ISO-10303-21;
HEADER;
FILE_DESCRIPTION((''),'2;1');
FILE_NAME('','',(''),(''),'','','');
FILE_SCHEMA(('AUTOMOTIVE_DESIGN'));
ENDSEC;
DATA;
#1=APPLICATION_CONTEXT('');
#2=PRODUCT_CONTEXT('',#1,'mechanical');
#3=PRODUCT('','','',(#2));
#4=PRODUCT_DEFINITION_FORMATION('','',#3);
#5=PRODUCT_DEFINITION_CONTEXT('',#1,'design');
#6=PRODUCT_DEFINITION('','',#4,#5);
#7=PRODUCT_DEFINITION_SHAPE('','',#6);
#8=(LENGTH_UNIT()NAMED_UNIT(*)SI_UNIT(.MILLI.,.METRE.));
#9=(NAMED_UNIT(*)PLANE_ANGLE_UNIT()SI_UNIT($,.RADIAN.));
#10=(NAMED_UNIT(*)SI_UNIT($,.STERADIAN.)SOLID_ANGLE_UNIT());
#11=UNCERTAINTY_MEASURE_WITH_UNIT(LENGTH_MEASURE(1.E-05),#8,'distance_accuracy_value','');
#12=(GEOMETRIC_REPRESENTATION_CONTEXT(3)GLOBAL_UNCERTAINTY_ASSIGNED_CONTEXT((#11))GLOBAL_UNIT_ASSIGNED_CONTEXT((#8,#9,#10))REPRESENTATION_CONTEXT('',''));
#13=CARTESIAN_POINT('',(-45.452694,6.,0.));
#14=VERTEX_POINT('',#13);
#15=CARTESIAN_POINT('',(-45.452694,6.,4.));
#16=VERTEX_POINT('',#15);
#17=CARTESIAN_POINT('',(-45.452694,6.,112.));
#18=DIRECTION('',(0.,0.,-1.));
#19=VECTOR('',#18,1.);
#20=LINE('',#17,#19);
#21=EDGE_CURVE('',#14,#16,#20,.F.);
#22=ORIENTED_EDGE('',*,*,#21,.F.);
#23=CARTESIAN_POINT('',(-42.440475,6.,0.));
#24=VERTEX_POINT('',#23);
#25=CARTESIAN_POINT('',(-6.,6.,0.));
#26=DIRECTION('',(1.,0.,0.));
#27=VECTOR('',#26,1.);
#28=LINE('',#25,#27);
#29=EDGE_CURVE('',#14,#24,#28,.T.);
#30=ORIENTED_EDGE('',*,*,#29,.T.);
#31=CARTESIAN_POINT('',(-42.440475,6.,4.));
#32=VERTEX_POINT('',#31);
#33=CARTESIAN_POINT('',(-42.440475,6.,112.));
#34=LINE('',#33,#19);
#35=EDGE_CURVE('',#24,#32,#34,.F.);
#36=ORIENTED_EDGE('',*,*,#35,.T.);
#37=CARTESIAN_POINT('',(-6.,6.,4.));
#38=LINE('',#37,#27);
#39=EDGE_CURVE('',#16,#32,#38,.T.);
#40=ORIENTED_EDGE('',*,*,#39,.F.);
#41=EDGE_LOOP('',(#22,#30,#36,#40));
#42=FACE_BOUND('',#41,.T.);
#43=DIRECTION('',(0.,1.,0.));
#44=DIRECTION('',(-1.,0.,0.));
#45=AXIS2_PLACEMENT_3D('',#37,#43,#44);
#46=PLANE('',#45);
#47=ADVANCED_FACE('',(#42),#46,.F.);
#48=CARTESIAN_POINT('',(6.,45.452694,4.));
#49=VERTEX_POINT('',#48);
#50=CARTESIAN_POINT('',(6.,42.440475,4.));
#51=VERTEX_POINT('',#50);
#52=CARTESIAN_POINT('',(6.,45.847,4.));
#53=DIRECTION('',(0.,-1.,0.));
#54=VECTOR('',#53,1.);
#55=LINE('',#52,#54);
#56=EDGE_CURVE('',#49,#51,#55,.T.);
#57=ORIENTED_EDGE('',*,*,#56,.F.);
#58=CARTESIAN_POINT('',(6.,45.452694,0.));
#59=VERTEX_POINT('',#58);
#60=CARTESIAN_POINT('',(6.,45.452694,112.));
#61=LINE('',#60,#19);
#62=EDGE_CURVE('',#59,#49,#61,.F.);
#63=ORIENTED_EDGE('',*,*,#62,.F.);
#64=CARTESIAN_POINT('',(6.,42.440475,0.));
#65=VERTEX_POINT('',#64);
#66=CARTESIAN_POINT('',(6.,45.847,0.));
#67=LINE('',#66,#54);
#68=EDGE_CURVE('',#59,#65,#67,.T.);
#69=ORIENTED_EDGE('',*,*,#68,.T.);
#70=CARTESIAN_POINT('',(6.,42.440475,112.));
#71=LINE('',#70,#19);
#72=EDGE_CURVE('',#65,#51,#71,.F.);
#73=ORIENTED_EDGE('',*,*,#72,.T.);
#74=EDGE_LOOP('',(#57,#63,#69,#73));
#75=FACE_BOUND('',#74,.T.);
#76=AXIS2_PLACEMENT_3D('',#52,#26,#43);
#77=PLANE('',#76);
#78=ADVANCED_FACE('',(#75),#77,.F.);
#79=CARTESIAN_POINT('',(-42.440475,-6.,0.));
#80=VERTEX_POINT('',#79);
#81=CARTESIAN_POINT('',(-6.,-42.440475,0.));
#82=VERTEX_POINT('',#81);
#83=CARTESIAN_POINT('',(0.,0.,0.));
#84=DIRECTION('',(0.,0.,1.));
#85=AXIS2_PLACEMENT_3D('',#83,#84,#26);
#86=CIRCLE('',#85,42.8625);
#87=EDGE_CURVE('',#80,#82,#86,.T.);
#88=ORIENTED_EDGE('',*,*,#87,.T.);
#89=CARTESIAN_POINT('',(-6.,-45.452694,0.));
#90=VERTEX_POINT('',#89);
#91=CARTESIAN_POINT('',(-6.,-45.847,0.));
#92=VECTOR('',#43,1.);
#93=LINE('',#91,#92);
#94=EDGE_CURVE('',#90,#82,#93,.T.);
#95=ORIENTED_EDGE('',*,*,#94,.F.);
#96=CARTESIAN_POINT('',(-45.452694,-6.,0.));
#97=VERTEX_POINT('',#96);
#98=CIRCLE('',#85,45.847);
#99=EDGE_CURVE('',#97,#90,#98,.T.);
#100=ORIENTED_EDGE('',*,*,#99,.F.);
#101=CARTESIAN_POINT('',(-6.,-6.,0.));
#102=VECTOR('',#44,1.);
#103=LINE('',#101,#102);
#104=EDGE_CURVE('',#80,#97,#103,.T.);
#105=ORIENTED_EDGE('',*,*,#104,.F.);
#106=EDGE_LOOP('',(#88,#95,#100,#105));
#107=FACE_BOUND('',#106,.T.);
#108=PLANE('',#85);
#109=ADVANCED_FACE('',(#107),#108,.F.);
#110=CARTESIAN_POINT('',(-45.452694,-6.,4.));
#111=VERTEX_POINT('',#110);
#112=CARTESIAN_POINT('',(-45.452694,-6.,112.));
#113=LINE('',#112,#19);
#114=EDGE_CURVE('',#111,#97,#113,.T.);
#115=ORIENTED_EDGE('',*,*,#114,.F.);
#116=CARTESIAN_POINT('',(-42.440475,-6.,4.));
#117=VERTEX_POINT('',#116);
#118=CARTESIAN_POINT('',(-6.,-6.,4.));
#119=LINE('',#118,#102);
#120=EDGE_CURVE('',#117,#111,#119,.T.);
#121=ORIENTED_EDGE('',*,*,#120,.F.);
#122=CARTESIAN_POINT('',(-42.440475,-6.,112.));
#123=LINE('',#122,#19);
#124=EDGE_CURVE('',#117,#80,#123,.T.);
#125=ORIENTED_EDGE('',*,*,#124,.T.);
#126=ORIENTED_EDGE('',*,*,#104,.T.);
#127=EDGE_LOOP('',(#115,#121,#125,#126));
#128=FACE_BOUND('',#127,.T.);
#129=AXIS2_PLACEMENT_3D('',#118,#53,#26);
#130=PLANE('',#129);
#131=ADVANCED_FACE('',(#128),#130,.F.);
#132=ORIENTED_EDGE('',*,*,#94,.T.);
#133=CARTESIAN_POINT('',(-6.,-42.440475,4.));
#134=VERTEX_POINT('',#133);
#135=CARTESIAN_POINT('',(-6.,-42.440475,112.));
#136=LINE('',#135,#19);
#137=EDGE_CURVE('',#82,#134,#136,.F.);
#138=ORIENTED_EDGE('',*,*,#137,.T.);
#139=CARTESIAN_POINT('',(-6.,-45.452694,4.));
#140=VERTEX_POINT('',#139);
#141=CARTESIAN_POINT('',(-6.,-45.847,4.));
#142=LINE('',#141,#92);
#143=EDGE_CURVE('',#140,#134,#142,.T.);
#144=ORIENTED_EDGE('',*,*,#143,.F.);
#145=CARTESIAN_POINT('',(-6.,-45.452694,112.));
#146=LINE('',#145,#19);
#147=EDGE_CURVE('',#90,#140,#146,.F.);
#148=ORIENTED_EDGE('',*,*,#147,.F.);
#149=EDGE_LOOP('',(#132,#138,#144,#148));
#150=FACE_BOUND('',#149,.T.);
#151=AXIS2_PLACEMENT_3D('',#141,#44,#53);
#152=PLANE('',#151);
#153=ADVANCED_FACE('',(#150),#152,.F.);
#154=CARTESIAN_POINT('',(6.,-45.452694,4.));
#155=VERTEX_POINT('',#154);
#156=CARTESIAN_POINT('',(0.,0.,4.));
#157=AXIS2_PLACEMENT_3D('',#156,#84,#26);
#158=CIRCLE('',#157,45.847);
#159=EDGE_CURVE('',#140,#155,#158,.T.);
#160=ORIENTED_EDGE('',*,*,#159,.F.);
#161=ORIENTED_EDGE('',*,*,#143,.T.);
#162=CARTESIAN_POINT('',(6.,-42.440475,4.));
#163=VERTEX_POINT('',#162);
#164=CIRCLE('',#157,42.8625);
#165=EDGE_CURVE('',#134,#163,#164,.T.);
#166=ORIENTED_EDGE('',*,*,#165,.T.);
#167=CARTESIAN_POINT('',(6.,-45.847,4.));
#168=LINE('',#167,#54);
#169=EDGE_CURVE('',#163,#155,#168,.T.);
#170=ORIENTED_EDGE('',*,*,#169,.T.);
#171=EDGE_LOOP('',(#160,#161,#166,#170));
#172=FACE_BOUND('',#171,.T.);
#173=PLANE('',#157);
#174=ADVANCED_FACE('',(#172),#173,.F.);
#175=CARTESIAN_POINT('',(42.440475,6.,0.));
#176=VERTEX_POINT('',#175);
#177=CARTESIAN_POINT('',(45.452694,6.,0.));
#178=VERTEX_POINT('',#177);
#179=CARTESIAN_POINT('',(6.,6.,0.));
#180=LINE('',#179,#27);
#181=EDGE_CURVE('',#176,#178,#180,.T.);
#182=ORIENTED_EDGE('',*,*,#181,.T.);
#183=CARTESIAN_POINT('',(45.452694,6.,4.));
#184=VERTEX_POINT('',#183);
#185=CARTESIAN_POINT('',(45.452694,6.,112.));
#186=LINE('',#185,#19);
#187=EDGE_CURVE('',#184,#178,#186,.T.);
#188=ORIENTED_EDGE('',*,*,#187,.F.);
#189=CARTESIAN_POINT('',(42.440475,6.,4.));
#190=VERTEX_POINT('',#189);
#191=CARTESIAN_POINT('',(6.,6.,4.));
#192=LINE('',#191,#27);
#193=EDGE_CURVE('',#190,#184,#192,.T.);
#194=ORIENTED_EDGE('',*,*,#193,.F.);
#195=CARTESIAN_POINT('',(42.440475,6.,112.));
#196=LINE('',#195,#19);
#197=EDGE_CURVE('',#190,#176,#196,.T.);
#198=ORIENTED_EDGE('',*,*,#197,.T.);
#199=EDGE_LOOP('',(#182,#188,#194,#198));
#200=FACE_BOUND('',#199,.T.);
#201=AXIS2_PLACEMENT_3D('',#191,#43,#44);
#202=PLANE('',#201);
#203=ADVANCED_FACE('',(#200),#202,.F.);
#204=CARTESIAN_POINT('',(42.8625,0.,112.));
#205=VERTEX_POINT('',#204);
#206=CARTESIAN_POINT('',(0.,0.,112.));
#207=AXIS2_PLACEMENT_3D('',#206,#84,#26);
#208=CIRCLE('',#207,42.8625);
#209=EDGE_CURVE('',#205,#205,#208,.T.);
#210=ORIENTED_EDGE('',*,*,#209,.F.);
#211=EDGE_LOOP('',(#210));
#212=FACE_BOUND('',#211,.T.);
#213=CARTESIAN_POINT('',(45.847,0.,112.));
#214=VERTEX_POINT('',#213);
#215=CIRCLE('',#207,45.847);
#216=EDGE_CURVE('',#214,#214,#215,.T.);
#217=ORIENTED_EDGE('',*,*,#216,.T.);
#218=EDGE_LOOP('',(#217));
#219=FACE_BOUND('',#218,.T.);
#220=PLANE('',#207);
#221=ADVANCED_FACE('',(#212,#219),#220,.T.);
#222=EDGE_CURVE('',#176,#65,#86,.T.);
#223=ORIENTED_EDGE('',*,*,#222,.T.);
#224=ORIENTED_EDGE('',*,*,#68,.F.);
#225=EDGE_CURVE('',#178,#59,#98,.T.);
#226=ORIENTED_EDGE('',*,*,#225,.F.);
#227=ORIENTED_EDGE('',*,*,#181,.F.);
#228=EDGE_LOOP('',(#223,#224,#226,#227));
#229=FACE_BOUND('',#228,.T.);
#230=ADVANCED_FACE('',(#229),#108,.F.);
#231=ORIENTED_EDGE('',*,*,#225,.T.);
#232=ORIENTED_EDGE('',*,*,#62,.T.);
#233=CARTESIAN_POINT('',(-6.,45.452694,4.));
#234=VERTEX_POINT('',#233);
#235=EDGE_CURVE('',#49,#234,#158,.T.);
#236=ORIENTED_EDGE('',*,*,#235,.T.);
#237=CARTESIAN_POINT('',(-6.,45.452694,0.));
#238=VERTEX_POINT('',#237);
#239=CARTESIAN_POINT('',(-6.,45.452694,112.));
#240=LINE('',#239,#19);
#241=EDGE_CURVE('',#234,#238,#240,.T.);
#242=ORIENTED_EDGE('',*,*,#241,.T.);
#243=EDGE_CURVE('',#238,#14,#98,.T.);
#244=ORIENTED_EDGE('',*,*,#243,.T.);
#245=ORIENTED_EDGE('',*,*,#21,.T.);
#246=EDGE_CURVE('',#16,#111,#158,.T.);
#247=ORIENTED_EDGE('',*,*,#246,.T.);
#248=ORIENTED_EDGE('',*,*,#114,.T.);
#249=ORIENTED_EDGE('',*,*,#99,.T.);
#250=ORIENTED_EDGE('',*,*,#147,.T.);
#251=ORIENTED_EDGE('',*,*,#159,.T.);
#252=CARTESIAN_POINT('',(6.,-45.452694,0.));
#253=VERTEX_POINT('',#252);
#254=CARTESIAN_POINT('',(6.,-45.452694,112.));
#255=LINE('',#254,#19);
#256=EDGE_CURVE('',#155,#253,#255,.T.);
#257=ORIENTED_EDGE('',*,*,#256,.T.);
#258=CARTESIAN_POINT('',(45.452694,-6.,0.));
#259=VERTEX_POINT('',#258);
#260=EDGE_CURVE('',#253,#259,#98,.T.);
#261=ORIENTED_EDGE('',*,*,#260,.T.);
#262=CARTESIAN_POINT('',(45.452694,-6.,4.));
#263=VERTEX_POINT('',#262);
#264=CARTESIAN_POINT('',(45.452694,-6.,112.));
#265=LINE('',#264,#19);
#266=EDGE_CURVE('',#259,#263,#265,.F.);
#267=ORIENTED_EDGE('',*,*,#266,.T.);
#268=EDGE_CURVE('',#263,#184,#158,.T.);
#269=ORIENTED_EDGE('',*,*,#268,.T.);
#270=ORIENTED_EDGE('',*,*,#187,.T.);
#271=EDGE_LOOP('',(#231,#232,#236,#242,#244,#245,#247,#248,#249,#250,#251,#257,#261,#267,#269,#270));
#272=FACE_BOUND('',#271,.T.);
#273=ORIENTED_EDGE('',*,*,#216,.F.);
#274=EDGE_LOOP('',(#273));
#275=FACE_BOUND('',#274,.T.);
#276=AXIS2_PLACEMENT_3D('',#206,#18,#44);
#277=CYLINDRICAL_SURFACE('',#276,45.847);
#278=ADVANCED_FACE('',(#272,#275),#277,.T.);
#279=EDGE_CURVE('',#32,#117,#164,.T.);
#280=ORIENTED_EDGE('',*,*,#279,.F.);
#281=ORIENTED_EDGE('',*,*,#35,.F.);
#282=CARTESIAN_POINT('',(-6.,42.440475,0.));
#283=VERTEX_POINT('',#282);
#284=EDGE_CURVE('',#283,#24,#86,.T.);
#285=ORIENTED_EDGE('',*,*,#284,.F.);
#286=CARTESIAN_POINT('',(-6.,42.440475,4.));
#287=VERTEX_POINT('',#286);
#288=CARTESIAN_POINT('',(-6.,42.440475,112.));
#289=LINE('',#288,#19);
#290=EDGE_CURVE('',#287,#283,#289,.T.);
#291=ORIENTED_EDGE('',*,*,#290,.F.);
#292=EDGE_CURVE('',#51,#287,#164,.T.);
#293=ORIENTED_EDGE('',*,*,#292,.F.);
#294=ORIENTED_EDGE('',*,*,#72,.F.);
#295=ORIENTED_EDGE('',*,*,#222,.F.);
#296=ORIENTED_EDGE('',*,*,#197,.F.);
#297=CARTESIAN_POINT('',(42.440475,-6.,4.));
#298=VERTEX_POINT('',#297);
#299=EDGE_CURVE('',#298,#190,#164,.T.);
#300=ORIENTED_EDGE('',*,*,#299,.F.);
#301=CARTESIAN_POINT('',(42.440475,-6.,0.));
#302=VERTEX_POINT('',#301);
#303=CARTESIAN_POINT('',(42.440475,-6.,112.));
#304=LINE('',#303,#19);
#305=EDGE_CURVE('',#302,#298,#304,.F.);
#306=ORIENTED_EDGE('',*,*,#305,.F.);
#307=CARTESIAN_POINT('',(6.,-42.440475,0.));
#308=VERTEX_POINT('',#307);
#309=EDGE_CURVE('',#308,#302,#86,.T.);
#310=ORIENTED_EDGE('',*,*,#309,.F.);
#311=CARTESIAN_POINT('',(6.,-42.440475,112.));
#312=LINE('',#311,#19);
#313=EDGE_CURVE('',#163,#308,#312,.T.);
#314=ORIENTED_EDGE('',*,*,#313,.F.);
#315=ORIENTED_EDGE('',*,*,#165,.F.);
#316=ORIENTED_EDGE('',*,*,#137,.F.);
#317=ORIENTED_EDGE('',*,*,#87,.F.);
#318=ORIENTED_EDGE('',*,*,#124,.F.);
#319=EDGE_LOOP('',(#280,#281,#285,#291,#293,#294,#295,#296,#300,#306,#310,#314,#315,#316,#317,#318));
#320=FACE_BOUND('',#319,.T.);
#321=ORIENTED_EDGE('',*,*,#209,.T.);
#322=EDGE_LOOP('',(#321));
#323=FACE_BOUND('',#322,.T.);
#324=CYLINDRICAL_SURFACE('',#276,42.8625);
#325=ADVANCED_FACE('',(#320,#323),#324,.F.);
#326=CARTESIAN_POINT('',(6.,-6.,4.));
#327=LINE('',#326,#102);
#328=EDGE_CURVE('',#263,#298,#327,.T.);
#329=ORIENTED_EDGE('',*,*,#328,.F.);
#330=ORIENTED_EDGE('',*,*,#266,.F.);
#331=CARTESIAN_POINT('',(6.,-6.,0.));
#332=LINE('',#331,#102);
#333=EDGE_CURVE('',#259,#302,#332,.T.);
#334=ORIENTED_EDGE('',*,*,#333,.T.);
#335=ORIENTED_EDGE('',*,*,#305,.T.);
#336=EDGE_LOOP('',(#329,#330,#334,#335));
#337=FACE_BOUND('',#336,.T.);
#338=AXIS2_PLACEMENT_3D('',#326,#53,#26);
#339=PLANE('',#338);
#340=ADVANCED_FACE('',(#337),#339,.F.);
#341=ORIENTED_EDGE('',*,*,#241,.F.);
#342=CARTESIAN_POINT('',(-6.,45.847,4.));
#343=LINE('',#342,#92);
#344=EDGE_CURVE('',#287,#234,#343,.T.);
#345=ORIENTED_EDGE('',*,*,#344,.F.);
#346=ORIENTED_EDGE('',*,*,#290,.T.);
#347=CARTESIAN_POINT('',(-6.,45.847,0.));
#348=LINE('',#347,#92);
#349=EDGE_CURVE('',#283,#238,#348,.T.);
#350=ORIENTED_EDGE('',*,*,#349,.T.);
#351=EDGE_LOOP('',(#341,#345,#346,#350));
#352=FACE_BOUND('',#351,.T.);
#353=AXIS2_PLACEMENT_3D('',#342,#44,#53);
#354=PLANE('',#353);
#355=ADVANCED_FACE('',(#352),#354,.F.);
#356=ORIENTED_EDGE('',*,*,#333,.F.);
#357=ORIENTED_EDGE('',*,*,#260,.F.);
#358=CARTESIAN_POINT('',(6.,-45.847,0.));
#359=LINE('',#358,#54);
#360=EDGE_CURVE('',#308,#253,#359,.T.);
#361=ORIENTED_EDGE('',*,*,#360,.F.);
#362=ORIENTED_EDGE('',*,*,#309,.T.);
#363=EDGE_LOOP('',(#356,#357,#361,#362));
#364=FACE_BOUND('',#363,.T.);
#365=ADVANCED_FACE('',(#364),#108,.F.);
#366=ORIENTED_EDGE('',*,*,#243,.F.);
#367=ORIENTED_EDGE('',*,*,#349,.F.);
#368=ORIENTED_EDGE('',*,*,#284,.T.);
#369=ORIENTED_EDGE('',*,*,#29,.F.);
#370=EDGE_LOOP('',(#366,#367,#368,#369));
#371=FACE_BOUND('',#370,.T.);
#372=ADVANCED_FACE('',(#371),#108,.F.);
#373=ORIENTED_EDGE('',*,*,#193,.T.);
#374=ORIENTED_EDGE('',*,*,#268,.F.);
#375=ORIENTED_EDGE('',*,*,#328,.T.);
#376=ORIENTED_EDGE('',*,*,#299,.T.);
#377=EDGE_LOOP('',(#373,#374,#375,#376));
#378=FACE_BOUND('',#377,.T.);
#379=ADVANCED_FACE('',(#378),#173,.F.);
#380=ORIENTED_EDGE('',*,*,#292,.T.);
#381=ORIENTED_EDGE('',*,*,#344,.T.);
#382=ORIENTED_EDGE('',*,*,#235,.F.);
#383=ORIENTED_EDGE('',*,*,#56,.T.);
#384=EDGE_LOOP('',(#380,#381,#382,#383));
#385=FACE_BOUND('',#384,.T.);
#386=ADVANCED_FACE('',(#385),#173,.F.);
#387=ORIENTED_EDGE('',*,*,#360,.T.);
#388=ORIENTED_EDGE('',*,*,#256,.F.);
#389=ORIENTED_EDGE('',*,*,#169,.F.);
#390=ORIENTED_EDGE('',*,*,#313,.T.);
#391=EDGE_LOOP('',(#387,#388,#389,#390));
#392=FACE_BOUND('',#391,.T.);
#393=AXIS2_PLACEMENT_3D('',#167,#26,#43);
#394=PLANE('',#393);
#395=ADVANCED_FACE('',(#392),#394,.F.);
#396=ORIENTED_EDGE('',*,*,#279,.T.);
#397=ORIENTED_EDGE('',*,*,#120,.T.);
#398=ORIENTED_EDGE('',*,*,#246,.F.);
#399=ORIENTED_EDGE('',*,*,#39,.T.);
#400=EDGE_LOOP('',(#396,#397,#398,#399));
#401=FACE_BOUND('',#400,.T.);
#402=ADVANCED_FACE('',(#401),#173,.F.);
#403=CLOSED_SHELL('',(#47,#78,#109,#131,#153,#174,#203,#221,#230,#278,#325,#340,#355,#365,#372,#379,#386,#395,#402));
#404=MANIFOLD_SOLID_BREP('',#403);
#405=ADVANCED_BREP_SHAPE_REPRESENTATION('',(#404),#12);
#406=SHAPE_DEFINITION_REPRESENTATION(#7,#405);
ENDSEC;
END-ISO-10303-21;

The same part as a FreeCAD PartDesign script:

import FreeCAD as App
import Part
import Sketcher
from FreeCAD import Vector
Q = App.Units.Quantity


def add_polygon(sketch, points):
    """Adds a closed chain of lines whose ends are joined by coincident constraints."""
    first, n = sketch.GeometryCount, len(points)
    for a, b in zip(points, points[1:] + points[:1]):
        sketch.addGeometry(Part.LineSegment(App.Vector(*a, 0), App.Vector(*b, 0)), False)
    for i in range(n):
        sketch.addConstraint(Sketcher.Constraint("Coincident", first + i, 2, first + (i + 1) % n, 1))

doc = App.newDocument("Part")
body = doc.addObject("PartDesign::Body", "Body")

# Sketch on XY plane
sketch1 = doc.addObject("Sketcher::SketchObject", "Sketch")
body.addObject(sketch1)
sketch1.AttachmentSupport = (doc.XY_Plane, [""])
sketch1.MapMode = "FlatFace"
sketch1.addGeometry([
    Part.Circle(Vector(0, 0, 0), Vector(0, 0, 1), 46),
    Part.Circle(Vector(0, 0, 0), Vector(0, 0, 1), 43),
], False)
sketch1.addConstraint([
    Sketcher.Constraint("Coincident", 0, 3, -1, 1),
    Sketcher.Constraint("Coincident", 1, 3, -1, 1),
    Sketcher.Constraint("Diameter", 0, Q("91.694 mm")),
    Sketcher.Constraint("Diameter", 1, Q("85.725 mm")),
])
pad1 = doc.addObject("PartDesign::Pad", "Pad")
body.addObject(pad1)
pad1.Profile = sketch1
pad1.Length = 112

# Sketch on XY plane
sketch2 = doc.addObject("Sketcher::SketchObject", "Sketch001")
body.addObject(sketch2)
sketch2.AttachmentSupport = (doc.XY_Plane, [""])
sketch2.MapMode = "FlatFace"
add_polygon(sketch2, [(-6, 46), (6, 46), (6, 6), (46, 6), (46, -6), (6, -6), (6, -46), (-6, -46), (-6, -6), (-46, -6), (-46, 6), (-6, 6)])  # lines 0-11
sketch2.addConstraint([
    Sketcher.Constraint("Horizontal", 0),
    Sketcher.Constraint("Vertical", 1),
    Sketcher.Constraint("Horizontal", 2),
    Sketcher.Constraint("Vertical", 3),
    Sketcher.Constraint("Horizontal", 4),
    Sketcher.Constraint("Vertical", 5),
    Sketcher.Constraint("Horizontal", 6),
    Sketcher.Constraint("Vertical", 7),
    Sketcher.Constraint("Horizontal", 8),
    Sketcher.Constraint("Vertical", 9),
    Sketcher.Constraint("Horizontal", 10),
    Sketcher.Constraint("Vertical", 11),
    Sketcher.Constraint("Symmetric", 0, 2, 6, 2, -1, 1),
    Sketcher.Constraint("Symmetric", 2, 2, 8, 2, -1, 1),
    Sketcher.Constraint("Symmetric", 4, 2, 10, 2, -1, 1),
    Sketcher.Constraint("Symmetric", 4, 2, 7, 2, -2),
    Sketcher.Constraint("Equal", 10, 1),
    Sketcher.Constraint("Equal", 6, 3),
    Sketcher.Constraint("DistanceX", 0, 1, 0, 2, Q("12 mm")),
    Sketcher.Constraint("DistanceX", 2, 1, 2, 2, Q("39.847 mm")),
])
pocket1 = doc.addObject("PartDesign::Pocket", "Pocket")
body.addObject(pocket1)
pocket1.Profile = sketch2
pocket1.Length = 4
pocket1.Reversed = True

doc.recompute()
